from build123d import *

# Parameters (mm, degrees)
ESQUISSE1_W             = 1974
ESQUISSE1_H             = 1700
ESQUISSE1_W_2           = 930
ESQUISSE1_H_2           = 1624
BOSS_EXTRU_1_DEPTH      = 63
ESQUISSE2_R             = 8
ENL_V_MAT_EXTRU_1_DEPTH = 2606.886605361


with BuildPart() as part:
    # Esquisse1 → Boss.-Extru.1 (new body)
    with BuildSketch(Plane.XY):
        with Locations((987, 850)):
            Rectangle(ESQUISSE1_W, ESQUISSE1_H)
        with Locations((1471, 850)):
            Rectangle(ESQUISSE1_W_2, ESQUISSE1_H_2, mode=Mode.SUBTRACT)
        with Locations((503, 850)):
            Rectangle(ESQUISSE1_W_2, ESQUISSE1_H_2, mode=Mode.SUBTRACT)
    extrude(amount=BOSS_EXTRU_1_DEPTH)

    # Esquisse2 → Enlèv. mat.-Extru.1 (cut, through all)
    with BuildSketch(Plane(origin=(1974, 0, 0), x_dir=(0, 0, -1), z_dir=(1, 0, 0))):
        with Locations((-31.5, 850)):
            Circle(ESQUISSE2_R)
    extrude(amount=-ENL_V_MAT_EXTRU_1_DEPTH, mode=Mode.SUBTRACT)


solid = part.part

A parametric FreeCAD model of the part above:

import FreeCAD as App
import Part
import Sketcher
from FreeCAD import Vector

doc = App.newDocument("Part")
body = doc.addObject("PartDesign::Body", "Body")

# Sketch on XY plane
sketch1 = body.newObject("Sketcher::SketchObject", "Sketch")
sketch1.AttachmentSupport = (doc.getObject("XY_Plane"), [""])
sketch1.MapMode = "FlatFace"
sketch1.addGeometry(Part.LineSegment(Vector(0, 1700, 0), Vector(0, 0, 0)), False)
sketch1.addGeometry(Part.LineSegment(Vector(0, 0, 0), Vector(1974, 0, 0)), False)
sketch1.addGeometry(Part.LineSegment(Vector(1974, 0, 0), Vector(1974, 1700, 0)), False)
sketch1.addGeometry(Part.LineSegment(Vector(1974, 1700, 0), Vector(0, 1700, 0)), False)
sketch1.addGeometry(Part.LineSegment(Vector(968, 38, 0), Vector(38, 38, 0)), False)
sketch1.addGeometry(Part.LineSegment(Vector(38, 38, 0), Vector(38, 1662, 0)), False)
sketch1.addGeometry(Part.LineSegment(Vector(38, 1662, 0), Vector(968, 1662, 0)), False)
sketch1.addGeometry(Part.LineSegment(Vector(968, 1662, 0), Vector(968, 38, 0)), False)
sketch1.addGeometry(Part.LineSegment(Vector(1936, 38, 0), Vector(1006, 38, 0)), False)
sketch1.addGeometry(Part.LineSegment(Vector(1006, 38, 0), Vector(1006, 1662, 0)), False)
sketch1.addGeometry(Part.LineSegment(Vector(1006, 1662, 0), Vector(1936, 1662, 0)), False)
sketch1.addGeometry(Part.LineSegment(Vector(1936, 1662, 0), Vector(1936, 38, 0)), False)
sketch1.addConstraint(Sketcher.Constraint("Coincident", 0, 2, 1, 1))
sketch1.addConstraint(Sketcher.Constraint("Coincident", 1, 2, 2, 1))
sketch1.addConstraint(Sketcher.Constraint("Coincident", 2, 2, 3, 1))
sketch1.addConstraint(Sketcher.Constraint("Coincident", 3, 2, 0, 1))
sketch1.addConstraint(Sketcher.Constraint("Coincident", 4, 2, 5, 1))
sketch1.addConstraint(Sketcher.Constraint("Coincident", 5, 2, 6, 1))
sketch1.addConstraint(Sketcher.Constraint("Coincident", 6, 2, 7, 1))
sketch1.addConstraint(Sketcher.Constraint("Coincident", 7, 2, 4, 1))
sketch1.addConstraint(Sketcher.Constraint("Coincident", 8, 2, 9, 1))
sketch1.addConstraint(Sketcher.Constraint("Coincident", 9, 2, 10, 1))
sketch1.addConstraint(Sketcher.Constraint("Coincident", 10, 2, 11, 1))
sketch1.addConstraint(Sketcher.Constraint("Coincident", 11, 2, 8, 1))
sketch1.addConstraint(Sketcher.Constraint("Vertical", 0))
sketch1.addConstraint(Sketcher.Constraint("Horizontal", 1))
sketch1.addConstraint(Sketcher.Constraint("Vertical", 2))
sketch1.addConstraint(Sketcher.Constraint("Horizontal", 3))
sketch1.addConstraint(Sketcher.Constraint("Horizontal", 4))
sketch1.addConstraint(Sketcher.Constraint("Vertical", 5))
sketch1.addConstraint(Sketcher.Constraint("Horizontal", 6))
sketch1.addConstraint(Sketcher.Constraint("Vertical", 7))
sketch1.addConstraint(Sketcher.Constraint("Horizontal", 8))
sketch1.addConstraint(Sketcher.Constraint("Vertical", 9))
sketch1.addConstraint(Sketcher.Constraint("Horizontal", 10))
sketch1.addConstraint(Sketcher.Constraint("Vertical", 11))
sketch1.addConstraint(Sketcher.Constraint("Coincident", 0, 2, -1, 1))
sketch1.addConstraint(Sketcher.Constraint("Horizontal", 7, 2, 8, 2))
sketch1.addConstraint(Sketcher.Constraint("Horizontal", 6, 2, 9, 2))
sketch1.addConstraint(Sketcher.Constraint("Equal", 6, 8))
sketch1.addConstraint(Sketcher.Constraint("DistanceX", 1, 1, 1, 2, 1974.0))
sketch1.addConstraint(Sketcher.Constraint("DistanceX", 4, 2, 4, 1, 930.0))
sketch1.addConstraint(Sketcher.Constraint("DistanceY", 0, 2, 0, 1, 1700.0))
sketch1.addConstraint(Sketcher.Constraint("DistanceY", 5, 1, 5, 2, 1624.0))
sketch1.addConstraint(Sketcher.Constraint("DistanceX", -1, 1, 4, 2, 38.0))
sketch1.addConstraint(Sketcher.Constraint("DistanceY", -1, 1, 4, 2, 38.0))
sketch1.addConstraint(Sketcher.Constraint("DistanceX", -1, 1, 8, 2, 1006.0))
pad1 = body.newObject("PartDesign::Pad", "Pad")
pad1.Profile = sketch1
pad1.Length = 63

# Sketch on YZ plane
sketch2 = body.newObject("Sketcher::SketchObject", "Sketch001")
sketch2.AttachmentSupport = (doc.getObject("YZ_Plane"), [""])
sketch2.MapMode = "FlatFace"
sketch2.AttachmentOffset = App.Placement(Vector(0, 0, 1974), App.Rotation())
sketch2.addGeometry(Part.Circle(Vector(850, 32, 0), Vector(0, 0, 1), 8), False)
sketch2.addConstraint(Sketcher.Constraint("Diameter", 0, 16.0))
sketch2.addConstraint(Sketcher.Constraint("DistanceX", -1, 1, 0, 3, 850.0))
sketch2.addConstraint(Sketcher.Constraint("DistanceY", -1, 1, 0, 3, 31.5))
pocket1 = body.newObject("PartDesign::Pocket", "Pocket")
pocket1.Profile = sketch2
pocket1.Type = "ThroughAll"

doc.recompute()
